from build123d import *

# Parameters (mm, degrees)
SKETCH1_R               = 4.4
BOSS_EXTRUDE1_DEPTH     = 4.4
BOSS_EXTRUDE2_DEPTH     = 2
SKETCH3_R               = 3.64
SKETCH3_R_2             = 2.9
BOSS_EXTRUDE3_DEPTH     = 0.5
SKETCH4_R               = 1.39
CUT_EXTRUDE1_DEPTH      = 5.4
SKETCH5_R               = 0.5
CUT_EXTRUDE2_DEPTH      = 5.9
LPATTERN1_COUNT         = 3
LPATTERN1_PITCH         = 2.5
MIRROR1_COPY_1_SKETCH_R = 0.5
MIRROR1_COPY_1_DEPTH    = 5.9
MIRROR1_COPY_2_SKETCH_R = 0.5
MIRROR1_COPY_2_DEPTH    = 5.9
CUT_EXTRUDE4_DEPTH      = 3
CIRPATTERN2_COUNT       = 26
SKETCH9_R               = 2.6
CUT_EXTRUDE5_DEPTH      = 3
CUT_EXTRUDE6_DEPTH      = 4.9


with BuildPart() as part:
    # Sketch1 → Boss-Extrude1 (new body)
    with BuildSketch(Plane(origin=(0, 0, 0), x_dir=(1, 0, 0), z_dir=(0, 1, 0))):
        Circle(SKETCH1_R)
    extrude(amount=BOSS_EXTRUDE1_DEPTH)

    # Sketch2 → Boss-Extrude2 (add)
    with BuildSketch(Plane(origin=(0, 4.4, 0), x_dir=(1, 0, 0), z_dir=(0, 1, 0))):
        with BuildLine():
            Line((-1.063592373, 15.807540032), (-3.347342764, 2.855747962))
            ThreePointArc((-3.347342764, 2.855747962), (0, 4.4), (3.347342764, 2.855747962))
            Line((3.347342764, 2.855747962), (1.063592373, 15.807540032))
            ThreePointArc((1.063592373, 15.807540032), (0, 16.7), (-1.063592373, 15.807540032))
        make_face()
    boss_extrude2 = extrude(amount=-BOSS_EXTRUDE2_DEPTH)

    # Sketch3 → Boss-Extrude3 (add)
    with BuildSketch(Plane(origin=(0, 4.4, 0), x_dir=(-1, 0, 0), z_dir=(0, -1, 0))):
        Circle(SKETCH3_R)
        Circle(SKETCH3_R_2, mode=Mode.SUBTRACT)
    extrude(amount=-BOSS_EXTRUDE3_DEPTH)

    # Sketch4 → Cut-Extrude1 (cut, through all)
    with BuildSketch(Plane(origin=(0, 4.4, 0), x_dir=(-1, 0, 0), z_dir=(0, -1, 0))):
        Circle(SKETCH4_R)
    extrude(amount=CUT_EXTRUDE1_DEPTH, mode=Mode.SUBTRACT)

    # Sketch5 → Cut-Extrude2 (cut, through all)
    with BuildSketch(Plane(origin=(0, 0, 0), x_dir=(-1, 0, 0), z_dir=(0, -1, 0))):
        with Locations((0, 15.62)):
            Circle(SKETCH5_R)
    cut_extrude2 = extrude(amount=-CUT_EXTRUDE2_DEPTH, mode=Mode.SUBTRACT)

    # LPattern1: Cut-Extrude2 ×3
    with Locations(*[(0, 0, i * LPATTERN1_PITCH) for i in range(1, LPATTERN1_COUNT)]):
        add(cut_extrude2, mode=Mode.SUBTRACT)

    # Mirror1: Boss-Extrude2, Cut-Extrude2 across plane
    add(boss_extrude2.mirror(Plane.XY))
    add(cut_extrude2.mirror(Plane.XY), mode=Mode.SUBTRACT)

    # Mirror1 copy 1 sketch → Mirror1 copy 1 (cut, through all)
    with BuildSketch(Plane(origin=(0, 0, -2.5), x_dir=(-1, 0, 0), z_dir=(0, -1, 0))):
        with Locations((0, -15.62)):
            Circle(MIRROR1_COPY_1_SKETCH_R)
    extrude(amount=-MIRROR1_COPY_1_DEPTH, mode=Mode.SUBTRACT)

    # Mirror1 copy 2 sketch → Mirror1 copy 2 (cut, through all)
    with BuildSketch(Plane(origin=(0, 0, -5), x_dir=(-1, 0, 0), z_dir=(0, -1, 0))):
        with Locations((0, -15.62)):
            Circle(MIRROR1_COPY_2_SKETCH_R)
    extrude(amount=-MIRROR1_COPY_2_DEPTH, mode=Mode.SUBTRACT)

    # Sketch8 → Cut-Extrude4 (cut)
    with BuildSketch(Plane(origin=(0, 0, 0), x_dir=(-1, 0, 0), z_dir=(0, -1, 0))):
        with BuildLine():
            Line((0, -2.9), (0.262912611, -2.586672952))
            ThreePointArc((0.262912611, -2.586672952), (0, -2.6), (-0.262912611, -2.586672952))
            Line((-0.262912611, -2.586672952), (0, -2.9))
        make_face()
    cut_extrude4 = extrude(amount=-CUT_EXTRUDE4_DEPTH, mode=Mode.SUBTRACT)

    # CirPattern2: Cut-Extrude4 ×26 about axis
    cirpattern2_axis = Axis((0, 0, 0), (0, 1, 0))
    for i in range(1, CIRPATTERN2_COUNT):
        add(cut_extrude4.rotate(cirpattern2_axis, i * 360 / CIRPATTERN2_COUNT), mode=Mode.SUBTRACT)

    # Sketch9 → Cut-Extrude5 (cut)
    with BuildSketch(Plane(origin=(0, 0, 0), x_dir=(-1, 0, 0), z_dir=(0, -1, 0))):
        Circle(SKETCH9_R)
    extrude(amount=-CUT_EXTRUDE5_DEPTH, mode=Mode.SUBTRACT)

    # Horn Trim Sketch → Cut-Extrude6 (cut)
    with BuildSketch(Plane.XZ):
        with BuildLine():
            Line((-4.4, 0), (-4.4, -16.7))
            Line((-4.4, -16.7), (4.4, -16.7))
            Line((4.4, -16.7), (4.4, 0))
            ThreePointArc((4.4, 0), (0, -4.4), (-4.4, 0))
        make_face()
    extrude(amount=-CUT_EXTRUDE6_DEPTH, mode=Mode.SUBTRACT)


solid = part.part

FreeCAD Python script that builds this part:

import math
import FreeCAD as App
import Part
import Sketcher

V = App.Vector
Q = App.Units.Quantity

doc = App.newDocument("Part")
body = doc.addObject("PartDesign::Body", "Body")

sketch1 = body.newObject("Sketcher::SketchObject", "Sketch")
sketch1.AttachmentSupport = (doc.getObject("XZ_Plane"), [""])
sketch1.MapMode = "FlatFace"
sketch1.addGeometry(Part.Circle(V(0, 0, 0), V(0, 0, 1), 4.4), False)
sketch1.addConstraint([
    Sketcher.Constraint("Coincident", 0, 3, -1, 1),
    Sketcher.Constraint("Diameter", 0, 8.8),
])
pad1 = body.newObject("PartDesign::Pad", "Pad")
pad1.Profile = sketch1
pad1.Length = 4.4
pad1.Reversed = True

sketch2 = body.newObject("Sketcher::SketchObject", "Sketch001")
sketch2.AttachmentSupport = (doc.getObject("XZ_Plane"), [""])
sketch2.MapMode = "FlatFace"
sketch2.AttachmentOffset = App.Placement(V(0, 0, -4.4), App.Rotation())
sketch2.addGeometry([
    Part.LineSegment(V(-1.1, -15.8, 0), V(-3.3, -2.9, 0)),
    Part.ArcOfCircle(Part.Circle(V(0, 0, 0), V(0, 0, 1), 4.4), math.radians(-140), math.radians(-40)),
    Part.LineSegment(V(3.3, -2.9, 0), V(1.1, -15.8, 0)),
    Part.ArcOfCircle(Part.Circle(V(0, -15.6, 0), V(0, 0, 1), 1.1), math.radians(-170), math.radians(-10)),
], False)
sketch2.addConstraint([
    Sketcher.Constraint("Coincident", 0, 2, 1, 1),
    Sketcher.Constraint("Coincident", 1, 2, 2, 1),
    Sketcher.Constraint("Tangent", 2, 2, 3, 2),
    Sketcher.Constraint("Tangent", 3, 1, 0, 1),
    Sketcher.Constraint("Coincident", 1, 3, -1, 1),
    Sketcher.Constraint("Symmetric", 2, 2, 3, 1, -2),
    Sketcher.Constraint("Radius", 1, 4.4),
    Sketcher.Constraint("Angle", 0, Q("100 deg")),
    Sketcher.Constraint("Radius", 3, 1.08),
    Sketcher.Constraint("DistanceY", 3, 3, -1, 1, 15.62),
])
pad2 = body.newObject("PartDesign::Pad", "Pad001")
pad2.Profile = sketch2
pad2.Length = 2

sketch3 = body.newObject("Sketcher::SketchObject", "Sketch002")
sketch3.AttachmentSupport = (doc.getObject("XZ_Plane"), [""])
sketch3.MapMode = "FlatFace"
sketch3.AttachmentOffset = App.Placement(V(0, 0, -4.4), App.Rotation())
sketch3.addGeometry([
    Part.Circle(V(0, 0, 0), V(0, 0, 1), 3.6),
    Part.Circle(V(0, 0, 0), V(0, 0, 1), 2.9),
], False)
sketch3.addConstraint([
    Sketcher.Constraint("Coincident", 0, 3, -1, 1),
    Sketcher.Constraint("Coincident", 1, 3, -1, 1),
    Sketcher.Constraint("Diameter", 1, 5.8),
    Sketcher.Constraint("Diameter", 0, 7.28),
])
pad3 = body.newObject("PartDesign::Pad", "Pad002")
pad3.Profile = sketch3
pad3.Length = 0.5
pad3.Reversed = True

sketch4 = body.newObject("Sketcher::SketchObject", "Sketch003")
sketch4.AttachmentSupport = (doc.getObject("XZ_Plane"), [""])
sketch4.MapMode = "FlatFace"
sketch4.AttachmentOffset = App.Placement(V(0, 0, -4.4), App.Rotation())
sketch4.addGeometry(Part.Circle(V(0, 0, 0), V(0, 0, 1), 1.4), False)
sketch4.addConstraint([
    Sketcher.Constraint("Coincident", 0, 3, -1, 1),
    Sketcher.Constraint("Diameter", 0, 2.78),
])
pocket1 = body.newObject("PartDesign::Pocket", "Pocket")
pocket1.Profile = sketch4
pocket1.Type = "ThroughAll"
pocket1.Reversed = True

sketch5 = body.newObject("Sketcher::SketchObject", "Sketch004")
sketch5.AttachmentSupport = (doc.getObject("XZ_Plane"), [""])
sketch5.MapMode = "FlatFace"
sketch5.addGeometry(Part.Circle(V(0, -15.6, 0), V(0, 0, 1), 0.5), False)
sketch5.addConstraint([
    Sketcher.Constraint("PointOnObject", 0, 3, -2),
    Sketcher.Constraint("Diameter", 0, 1.0),
    Sketcher.Constraint("DistanceY", 0, 3, -1, 1, 15.62),
])
pocket2 = body.newObject("PartDesign::Pocket", "Pocket001")
pocket2.Profile = sketch5
pocket2.Type = "ThroughAll"
doc.recompute()

linearpattern = body.newObject("PartDesign::LinearPattern", "LinearPattern")
linearpattern.Originals = [pocket2]
linearpattern.Direction = (doc.getObject("Z_Axis"), [""])
linearpattern.Mode = "offset"
linearpattern.Offset = 2.5
linearpattern.Occurrences = 3
body.Tip = linearpattern
doc.recompute()

mirrored = body.newObject("PartDesign::Mirrored", "Mirrored")
mirrored.Originals = [pad2, pocket2]
mirrored.MirrorPlane = (doc.getObject("XY_Plane"), [""])
body.Tip = mirrored

sketch6 = body.newObject("Sketcher::SketchObject", "Sketch005")
sketch6.AttachmentSupport = (doc.getObject("XZ_Plane"), [""])
sketch6.MapMode = "FlatFace"
sketch6.addGeometry(Part.Circle(V(0, 13.1, 0), V(0, 0, 1), 0.5), False)
sketch6.addConstraint([
    Sketcher.Constraint("PointOnObject", 0, 3, -2),
    Sketcher.Constraint("Diameter", 0, 1.0),
    Sketcher.Constraint("DistanceY", -1, 1, 0, 3, 13.12),
])
pocket3 = body.newObject("PartDesign::Pocket", "Pocket002")
pocket3.Profile = sketch6
pocket3.Type = "ThroughAll"

sketch7 = body.newObject("Sketcher::SketchObject", "Sketch006")
sketch7.AttachmentSupport = (doc.getObject("XZ_Plane"), [""])
sketch7.MapMode = "FlatFace"
sketch7.addGeometry(Part.Circle(V(0, 10.6, 0), V(0, 0, 1), 0.5), False)
sketch7.addConstraint([
    Sketcher.Constraint("PointOnObject", 0, 3, -2),
    Sketcher.Constraint("Diameter", 0, 1.0),
    Sketcher.Constraint("DistanceY", -1, 1, 0, 3, 10.62),
])
pocket4 = body.newObject("PartDesign::Pocket", "Pocket003")
pocket4.Profile = sketch7
pocket4.Type = "ThroughAll"

sketch8 = body.newObject("Sketcher::SketchObject", "Sketch007")
sketch8.AttachmentSupport = (doc.getObject("XZ_Plane"), [""])
sketch8.MapMode = "FlatFace"
sketch8.addGeometry([
    Part.LineSegment(V(0, 2.9, 0), V(-0.26, 2.59, 0)),
    Part.ArcOfCircle(Part.Circle(V(0, 0, 0), V(0, 0, 1), 2.6), math.radians(84.2), math.radians(95.8)),
    Part.LineSegment(V(0.26, 2.59, 0), V(0, 2.9, 0)),
], False)
sketch8.addConstraint([
    Sketcher.Constraint("Coincident", 0, 2, 1, 2),
    Sketcher.Constraint("Coincident", 1, 1, 2, 1),
    Sketcher.Constraint("Coincident", 2, 2, 0, 1),
    Sketcher.Constraint("Coincident", 1, 3, -1, 1),
    Sketcher.Constraint("PointOnObject", 2, 2, -2),
    Sketcher.Constraint("Horizontal", 0, 2, 1, 1),
    Sketcher.Constraint("Radius", 1, 2.6),
    Sketcher.Constraint("Angle", 0, Q("-130 deg")),
    Sketcher.Constraint("DistanceY", -1, 1, 2, 2, 2.9),
])
pocket5 = body.newObject("PartDesign::Pocket", "Pocket004")
pocket5.Profile = sketch8
pocket5.Length = 3
doc.recompute()

polarpattern = body.newObject("PartDesign::PolarPattern", "PolarPattern")
polarpattern.Originals = [pocket5]
polarpattern.Axis = (doc.getObject("Y_Axis"), [""])
polarpattern.Angle = 360
polarpattern.Occurrences = 26
body.Tip = polarpattern

sketch9 = body.newObject("Sketcher::SketchObject", "Sketch008")
sketch9.AttachmentSupport = (doc.getObject("XZ_Plane"), [""])
sketch9.MapMode = "FlatFace"
sketch9.addGeometry(Part.Circle(V(0, 0, 0), V(0, 0, 1), 2.6), False)
sketch9.addConstraint([
    Sketcher.Constraint("Coincident", 0, 3, -1, 1),
    Sketcher.Constraint("Diameter", 0, 5.2),
])
pocket6 = body.newObject("PartDesign::Pocket", "Pocket005")
pocket6.Profile = sketch9
pocket6.Length = 3

sketch10 = body.newObject("Sketcher::SketchObject", "Sketch009")
sketch10.AttachmentSupport = (doc.getObject("XZ_Plane"), [""])
sketch10.MapMode = "FlatFace"
sketch10.addGeometry([
    Part.LineSegment(V(-4.4, 0, 0), V(-4.4, -16.7, 0)),
    Part.LineSegment(V(-4.4, -16.7, 0), V(4.4, -16.7, 0)),
    Part.LineSegment(V(4.4, -16.7, 0), V(4.4, 0, 0)),
    Part.ArcOfCircle(Part.Circle(V(0, 0, 0), V(0, 0, 1), 4.4), math.radians(180), math.radians(360)),
], False)
sketch10.addConstraint([
    Sketcher.Constraint("Coincident", 0, 2, 1, 1),
    Sketcher.Constraint("Coincident", 1, 2, 2, 1),
    Sketcher.Constraint("Tangent", 2, 2, 3, 2),
    Sketcher.Constraint("Tangent", 3, 1, 0, 1),
    Sketcher.Constraint("Vertical", 0),
    Sketcher.Constraint("Horizontal", 1),
    Sketcher.Constraint("Vertical", 2),
    Sketcher.Constraint("Coincident", 3, 3, -1, 1),
    Sketcher.Constraint("Radius", 3, 4.4),
    Sketcher.Constraint("DistanceY", 0, 2, 0, 1, 16.7),
])
pocket7 = body.newObject("PartDesign::Pocket", "Pocket006")
pocket7.Profile = sketch10
pocket7.Length = 4.9

doc.recompute()
